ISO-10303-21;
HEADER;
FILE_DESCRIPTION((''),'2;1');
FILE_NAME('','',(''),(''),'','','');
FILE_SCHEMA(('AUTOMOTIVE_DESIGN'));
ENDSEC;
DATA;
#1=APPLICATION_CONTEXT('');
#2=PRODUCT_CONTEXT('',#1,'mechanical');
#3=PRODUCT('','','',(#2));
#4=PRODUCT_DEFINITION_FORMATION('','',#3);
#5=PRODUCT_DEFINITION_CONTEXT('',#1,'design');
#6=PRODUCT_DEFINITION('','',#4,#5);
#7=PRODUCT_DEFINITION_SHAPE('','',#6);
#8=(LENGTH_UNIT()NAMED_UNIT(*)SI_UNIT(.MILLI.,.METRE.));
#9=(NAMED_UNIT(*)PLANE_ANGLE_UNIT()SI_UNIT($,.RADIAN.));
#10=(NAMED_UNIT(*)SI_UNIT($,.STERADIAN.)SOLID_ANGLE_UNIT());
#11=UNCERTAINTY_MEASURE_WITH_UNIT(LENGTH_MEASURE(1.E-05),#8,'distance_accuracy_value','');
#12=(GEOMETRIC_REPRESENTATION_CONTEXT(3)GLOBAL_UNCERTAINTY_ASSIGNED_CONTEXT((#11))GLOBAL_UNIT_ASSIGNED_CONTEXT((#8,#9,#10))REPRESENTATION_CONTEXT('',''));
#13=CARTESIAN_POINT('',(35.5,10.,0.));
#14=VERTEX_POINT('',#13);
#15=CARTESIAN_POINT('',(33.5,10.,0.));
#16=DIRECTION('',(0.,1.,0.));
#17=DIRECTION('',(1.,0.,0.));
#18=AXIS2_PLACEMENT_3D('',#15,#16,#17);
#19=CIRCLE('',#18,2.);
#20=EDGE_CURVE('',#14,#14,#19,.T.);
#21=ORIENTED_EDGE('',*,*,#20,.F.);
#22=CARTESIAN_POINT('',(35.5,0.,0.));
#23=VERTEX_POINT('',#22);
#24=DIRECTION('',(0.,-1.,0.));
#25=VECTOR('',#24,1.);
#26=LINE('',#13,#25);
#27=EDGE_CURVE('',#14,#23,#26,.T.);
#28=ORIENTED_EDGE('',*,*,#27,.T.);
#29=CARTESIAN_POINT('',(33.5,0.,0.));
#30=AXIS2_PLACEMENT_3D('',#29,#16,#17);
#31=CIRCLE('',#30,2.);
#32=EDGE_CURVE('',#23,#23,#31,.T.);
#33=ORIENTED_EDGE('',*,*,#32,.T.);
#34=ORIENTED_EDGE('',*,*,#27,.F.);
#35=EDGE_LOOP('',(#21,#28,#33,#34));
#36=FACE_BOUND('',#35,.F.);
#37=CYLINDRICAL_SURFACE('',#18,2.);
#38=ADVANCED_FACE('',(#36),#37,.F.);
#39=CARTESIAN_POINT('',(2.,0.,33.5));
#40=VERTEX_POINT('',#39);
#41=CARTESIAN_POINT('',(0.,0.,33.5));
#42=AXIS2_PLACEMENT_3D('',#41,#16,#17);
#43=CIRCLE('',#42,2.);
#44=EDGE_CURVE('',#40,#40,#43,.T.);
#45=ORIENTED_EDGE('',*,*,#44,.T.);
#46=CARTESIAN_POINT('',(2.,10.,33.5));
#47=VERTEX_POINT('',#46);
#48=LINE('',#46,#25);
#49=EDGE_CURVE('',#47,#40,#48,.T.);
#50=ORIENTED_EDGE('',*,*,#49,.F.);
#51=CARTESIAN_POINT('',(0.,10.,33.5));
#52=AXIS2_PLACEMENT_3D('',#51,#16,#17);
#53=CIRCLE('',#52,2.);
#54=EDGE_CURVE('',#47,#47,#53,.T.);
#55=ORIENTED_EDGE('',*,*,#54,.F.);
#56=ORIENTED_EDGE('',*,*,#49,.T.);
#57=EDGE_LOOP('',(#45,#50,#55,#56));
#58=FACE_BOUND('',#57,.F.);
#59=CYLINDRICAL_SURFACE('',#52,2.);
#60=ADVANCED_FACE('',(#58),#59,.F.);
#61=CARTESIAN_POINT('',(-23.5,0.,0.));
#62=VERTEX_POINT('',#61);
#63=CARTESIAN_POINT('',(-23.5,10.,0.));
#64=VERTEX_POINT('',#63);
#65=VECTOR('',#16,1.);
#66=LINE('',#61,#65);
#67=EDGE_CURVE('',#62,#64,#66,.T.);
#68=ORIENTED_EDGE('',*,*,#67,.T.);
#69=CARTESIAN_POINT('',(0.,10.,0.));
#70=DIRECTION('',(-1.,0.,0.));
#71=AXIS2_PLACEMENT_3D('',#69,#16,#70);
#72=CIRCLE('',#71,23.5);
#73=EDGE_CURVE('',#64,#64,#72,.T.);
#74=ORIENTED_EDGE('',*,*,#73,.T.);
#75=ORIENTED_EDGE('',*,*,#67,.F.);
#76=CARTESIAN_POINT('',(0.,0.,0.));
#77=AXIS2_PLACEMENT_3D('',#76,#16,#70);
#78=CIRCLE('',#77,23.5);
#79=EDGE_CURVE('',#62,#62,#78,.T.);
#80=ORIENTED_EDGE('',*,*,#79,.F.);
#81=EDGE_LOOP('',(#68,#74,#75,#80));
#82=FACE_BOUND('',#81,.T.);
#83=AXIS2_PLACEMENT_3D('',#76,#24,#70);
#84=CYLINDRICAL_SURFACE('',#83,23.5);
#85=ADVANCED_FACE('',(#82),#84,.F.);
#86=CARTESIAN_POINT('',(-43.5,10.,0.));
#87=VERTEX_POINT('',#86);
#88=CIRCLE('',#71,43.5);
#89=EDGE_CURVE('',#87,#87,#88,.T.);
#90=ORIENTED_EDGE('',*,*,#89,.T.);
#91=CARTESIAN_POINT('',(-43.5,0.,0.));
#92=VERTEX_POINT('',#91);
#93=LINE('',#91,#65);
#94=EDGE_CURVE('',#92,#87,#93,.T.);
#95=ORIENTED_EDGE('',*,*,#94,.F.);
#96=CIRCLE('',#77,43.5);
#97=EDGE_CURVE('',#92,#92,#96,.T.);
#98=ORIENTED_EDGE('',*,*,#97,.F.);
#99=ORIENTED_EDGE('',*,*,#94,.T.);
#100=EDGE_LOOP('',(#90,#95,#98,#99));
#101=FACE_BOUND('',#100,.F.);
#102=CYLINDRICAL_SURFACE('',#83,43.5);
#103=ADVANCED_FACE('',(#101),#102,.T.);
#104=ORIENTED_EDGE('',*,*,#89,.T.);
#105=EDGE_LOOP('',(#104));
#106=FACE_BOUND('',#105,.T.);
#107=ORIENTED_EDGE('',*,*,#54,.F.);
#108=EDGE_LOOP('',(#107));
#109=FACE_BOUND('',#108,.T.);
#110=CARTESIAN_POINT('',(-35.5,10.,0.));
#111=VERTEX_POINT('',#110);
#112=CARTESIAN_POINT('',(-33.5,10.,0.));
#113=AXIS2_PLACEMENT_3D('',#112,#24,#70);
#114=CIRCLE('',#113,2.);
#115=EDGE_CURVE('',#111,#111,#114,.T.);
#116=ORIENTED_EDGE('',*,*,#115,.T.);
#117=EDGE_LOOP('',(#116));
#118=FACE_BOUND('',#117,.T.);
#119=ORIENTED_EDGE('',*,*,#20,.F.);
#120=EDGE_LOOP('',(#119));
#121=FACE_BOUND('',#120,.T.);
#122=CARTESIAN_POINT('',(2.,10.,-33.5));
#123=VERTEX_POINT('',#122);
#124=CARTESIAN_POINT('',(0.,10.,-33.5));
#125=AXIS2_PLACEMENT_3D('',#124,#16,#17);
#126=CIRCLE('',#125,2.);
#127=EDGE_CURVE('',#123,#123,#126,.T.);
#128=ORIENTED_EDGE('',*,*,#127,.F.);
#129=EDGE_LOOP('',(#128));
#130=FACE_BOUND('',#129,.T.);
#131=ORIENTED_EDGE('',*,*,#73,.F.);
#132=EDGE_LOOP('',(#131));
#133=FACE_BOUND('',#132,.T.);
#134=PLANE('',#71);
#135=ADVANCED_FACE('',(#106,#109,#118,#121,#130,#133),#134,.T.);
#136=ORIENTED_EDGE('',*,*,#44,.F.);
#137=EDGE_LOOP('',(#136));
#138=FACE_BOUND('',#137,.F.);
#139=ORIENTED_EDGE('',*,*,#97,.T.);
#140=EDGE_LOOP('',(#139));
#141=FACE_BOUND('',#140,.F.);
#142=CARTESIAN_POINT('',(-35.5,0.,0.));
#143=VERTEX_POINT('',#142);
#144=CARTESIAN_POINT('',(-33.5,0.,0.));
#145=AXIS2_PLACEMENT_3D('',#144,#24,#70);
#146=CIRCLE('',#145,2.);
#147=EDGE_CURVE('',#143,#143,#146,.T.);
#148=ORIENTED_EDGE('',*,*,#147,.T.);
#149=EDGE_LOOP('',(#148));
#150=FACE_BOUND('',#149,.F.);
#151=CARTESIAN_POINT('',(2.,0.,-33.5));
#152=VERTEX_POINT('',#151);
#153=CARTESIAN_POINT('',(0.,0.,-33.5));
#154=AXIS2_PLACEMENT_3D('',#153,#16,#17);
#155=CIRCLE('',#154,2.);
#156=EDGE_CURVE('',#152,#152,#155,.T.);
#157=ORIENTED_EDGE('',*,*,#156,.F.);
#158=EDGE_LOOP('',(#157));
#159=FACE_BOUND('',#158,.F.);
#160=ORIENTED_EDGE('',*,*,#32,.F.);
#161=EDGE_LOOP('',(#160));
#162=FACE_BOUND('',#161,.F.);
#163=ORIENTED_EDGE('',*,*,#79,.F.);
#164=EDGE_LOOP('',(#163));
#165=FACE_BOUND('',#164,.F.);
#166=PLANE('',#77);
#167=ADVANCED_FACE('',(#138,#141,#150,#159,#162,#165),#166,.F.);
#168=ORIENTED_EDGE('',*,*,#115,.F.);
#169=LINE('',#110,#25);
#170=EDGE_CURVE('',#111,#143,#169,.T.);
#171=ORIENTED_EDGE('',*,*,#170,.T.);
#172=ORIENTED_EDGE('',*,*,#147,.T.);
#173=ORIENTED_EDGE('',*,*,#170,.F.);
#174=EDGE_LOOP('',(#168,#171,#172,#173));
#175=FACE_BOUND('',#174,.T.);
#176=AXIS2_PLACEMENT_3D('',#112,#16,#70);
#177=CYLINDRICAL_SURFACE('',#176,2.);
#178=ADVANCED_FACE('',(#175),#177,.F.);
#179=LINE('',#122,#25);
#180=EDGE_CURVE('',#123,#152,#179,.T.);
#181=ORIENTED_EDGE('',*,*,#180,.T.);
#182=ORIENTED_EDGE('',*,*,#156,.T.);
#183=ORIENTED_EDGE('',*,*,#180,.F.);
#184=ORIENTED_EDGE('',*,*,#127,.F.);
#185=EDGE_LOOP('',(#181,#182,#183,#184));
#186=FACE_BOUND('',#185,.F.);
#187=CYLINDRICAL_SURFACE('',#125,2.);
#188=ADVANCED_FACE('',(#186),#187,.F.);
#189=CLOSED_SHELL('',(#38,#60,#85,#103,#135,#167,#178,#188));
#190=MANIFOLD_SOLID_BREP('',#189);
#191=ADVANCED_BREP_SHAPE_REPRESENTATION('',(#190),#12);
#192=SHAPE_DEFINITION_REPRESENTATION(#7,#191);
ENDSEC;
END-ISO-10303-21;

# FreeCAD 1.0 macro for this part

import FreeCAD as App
import Part
import Sketcher
from FreeCAD import Vector

doc = App.newDocument("Part")
body = doc.addObject("PartDesign::Body", "Body")

# Sketch on XZ plane
sketch1 = body.newObject("Sketcher::SketchObject", "Sketch")
sketch1.AttachmentSupport = (doc.getObject("XZ_Plane"), [""])
sketch1.MapMode = "FlatFace"
sketch1.addGeometry(Part.Circle(Vector(0, 0, 0), Vector(0, 0, 1), 44), False)
sketch1.addGeometry(Part.Circle(Vector(0, 0, 0), Vector(0, 0, 1), 24), False)
sketch1.addConstraint(Sketcher.Constraint("Coincident", 0, 3, -1, 1))
sketch1.addConstraint(Sketcher.Constraint("Coincident", 1, 3, -1, 1))
sketch1.addConstraint(Sketcher.Constraint("Diameter", 0, 87.0))
sketch1.addConstraint(Sketcher.Constraint("Diameter", 1, 47.0))
pad1 = body.newObject("PartDesign::Pad", "Pad")
pad1.Profile = sketch1
pad1.Length = 10
pad1.Reversed = True

# Sketch on XZ plane
sketch2 = body.newObject("Sketcher::SketchObject", "Sketch001")
sketch2.AttachmentSupport = (doc.getObject("XZ_Plane"), [""])
sketch2.MapMode = "FlatFace"
sketch2.AttachmentOffset = App.Placement(Vector(0, 0, -10), App.Rotation())
sketch2.addGeometry(Part.Circle(Vector(33.5, 0, 0), Vector(0, 0, 1), 2), False)
sketch2.addConstraint(Sketcher.Constraint("PointOnObject", 0, 3, -1))
sketch2.addConstraint(Sketcher.Constraint("Diameter", 0, 4.0))
sketch2.addConstraint(Sketcher.Constraint("DistanceX", -1, 1, 0, 3, 33.5))
pocket1 = body.newObject("PartDesign::Pocket", "Pocket")
pocket1.Profile = sketch2
pocket1.Length = 10
pocket1.Reversed = True
doc.recompute()

mirrored = body.newObject("PartDesign::Mirrored", "Mirrored")
mirrored.Originals = [pocket1]
mirrored.MirrorPlane = (doc.getObject("YZ_Plane"), [""])
body.Tip = mirrored

# Sketch on XZ plane
sketch3 = body.newObject("Sketcher::SketchObject", "Sketch002")
sketch3.AttachmentSupport = (doc.getObject("XZ_Plane"), [""])
sketch3.MapMode = "FlatFace"
sketch3.AttachmentOffset = App.Placement(Vector(0, 0, -10), App.Rotation())
sketch3.addGeometry(Part.Circle(Vector(0, -33.5, 0), Vector(0, 0, 1), 2), False)
sketch3.addGeometry(Part.Circle(Vector(0, 33.5, 0), Vector(0, 0, 1), 2), False)
sketch3.addConstraint(Sketcher.Constraint("Equal", 0, 1))
sketch3.addConstraint(Sketcher.Constraint("Symmetric", 0, 3, 1, 3, -1, 1))
sketch3.addConstraint(Sketcher.Constraint("PointOnObject", 0, 3, -2))
sketch3.addConstraint(Sketcher.Constraint("Diameter", 0, 4.0))
sketch3.addConstraint(Sketcher.Constraint("DistanceY", 0, 3, 1, 3, 67.0))
pocket2 = body.newObject("PartDesign::Pocket", "Pocket001")
pocket2.Profile = sketch3
pocket2.Length = 10
pocket2.Reversed = True

doc.recompute()
